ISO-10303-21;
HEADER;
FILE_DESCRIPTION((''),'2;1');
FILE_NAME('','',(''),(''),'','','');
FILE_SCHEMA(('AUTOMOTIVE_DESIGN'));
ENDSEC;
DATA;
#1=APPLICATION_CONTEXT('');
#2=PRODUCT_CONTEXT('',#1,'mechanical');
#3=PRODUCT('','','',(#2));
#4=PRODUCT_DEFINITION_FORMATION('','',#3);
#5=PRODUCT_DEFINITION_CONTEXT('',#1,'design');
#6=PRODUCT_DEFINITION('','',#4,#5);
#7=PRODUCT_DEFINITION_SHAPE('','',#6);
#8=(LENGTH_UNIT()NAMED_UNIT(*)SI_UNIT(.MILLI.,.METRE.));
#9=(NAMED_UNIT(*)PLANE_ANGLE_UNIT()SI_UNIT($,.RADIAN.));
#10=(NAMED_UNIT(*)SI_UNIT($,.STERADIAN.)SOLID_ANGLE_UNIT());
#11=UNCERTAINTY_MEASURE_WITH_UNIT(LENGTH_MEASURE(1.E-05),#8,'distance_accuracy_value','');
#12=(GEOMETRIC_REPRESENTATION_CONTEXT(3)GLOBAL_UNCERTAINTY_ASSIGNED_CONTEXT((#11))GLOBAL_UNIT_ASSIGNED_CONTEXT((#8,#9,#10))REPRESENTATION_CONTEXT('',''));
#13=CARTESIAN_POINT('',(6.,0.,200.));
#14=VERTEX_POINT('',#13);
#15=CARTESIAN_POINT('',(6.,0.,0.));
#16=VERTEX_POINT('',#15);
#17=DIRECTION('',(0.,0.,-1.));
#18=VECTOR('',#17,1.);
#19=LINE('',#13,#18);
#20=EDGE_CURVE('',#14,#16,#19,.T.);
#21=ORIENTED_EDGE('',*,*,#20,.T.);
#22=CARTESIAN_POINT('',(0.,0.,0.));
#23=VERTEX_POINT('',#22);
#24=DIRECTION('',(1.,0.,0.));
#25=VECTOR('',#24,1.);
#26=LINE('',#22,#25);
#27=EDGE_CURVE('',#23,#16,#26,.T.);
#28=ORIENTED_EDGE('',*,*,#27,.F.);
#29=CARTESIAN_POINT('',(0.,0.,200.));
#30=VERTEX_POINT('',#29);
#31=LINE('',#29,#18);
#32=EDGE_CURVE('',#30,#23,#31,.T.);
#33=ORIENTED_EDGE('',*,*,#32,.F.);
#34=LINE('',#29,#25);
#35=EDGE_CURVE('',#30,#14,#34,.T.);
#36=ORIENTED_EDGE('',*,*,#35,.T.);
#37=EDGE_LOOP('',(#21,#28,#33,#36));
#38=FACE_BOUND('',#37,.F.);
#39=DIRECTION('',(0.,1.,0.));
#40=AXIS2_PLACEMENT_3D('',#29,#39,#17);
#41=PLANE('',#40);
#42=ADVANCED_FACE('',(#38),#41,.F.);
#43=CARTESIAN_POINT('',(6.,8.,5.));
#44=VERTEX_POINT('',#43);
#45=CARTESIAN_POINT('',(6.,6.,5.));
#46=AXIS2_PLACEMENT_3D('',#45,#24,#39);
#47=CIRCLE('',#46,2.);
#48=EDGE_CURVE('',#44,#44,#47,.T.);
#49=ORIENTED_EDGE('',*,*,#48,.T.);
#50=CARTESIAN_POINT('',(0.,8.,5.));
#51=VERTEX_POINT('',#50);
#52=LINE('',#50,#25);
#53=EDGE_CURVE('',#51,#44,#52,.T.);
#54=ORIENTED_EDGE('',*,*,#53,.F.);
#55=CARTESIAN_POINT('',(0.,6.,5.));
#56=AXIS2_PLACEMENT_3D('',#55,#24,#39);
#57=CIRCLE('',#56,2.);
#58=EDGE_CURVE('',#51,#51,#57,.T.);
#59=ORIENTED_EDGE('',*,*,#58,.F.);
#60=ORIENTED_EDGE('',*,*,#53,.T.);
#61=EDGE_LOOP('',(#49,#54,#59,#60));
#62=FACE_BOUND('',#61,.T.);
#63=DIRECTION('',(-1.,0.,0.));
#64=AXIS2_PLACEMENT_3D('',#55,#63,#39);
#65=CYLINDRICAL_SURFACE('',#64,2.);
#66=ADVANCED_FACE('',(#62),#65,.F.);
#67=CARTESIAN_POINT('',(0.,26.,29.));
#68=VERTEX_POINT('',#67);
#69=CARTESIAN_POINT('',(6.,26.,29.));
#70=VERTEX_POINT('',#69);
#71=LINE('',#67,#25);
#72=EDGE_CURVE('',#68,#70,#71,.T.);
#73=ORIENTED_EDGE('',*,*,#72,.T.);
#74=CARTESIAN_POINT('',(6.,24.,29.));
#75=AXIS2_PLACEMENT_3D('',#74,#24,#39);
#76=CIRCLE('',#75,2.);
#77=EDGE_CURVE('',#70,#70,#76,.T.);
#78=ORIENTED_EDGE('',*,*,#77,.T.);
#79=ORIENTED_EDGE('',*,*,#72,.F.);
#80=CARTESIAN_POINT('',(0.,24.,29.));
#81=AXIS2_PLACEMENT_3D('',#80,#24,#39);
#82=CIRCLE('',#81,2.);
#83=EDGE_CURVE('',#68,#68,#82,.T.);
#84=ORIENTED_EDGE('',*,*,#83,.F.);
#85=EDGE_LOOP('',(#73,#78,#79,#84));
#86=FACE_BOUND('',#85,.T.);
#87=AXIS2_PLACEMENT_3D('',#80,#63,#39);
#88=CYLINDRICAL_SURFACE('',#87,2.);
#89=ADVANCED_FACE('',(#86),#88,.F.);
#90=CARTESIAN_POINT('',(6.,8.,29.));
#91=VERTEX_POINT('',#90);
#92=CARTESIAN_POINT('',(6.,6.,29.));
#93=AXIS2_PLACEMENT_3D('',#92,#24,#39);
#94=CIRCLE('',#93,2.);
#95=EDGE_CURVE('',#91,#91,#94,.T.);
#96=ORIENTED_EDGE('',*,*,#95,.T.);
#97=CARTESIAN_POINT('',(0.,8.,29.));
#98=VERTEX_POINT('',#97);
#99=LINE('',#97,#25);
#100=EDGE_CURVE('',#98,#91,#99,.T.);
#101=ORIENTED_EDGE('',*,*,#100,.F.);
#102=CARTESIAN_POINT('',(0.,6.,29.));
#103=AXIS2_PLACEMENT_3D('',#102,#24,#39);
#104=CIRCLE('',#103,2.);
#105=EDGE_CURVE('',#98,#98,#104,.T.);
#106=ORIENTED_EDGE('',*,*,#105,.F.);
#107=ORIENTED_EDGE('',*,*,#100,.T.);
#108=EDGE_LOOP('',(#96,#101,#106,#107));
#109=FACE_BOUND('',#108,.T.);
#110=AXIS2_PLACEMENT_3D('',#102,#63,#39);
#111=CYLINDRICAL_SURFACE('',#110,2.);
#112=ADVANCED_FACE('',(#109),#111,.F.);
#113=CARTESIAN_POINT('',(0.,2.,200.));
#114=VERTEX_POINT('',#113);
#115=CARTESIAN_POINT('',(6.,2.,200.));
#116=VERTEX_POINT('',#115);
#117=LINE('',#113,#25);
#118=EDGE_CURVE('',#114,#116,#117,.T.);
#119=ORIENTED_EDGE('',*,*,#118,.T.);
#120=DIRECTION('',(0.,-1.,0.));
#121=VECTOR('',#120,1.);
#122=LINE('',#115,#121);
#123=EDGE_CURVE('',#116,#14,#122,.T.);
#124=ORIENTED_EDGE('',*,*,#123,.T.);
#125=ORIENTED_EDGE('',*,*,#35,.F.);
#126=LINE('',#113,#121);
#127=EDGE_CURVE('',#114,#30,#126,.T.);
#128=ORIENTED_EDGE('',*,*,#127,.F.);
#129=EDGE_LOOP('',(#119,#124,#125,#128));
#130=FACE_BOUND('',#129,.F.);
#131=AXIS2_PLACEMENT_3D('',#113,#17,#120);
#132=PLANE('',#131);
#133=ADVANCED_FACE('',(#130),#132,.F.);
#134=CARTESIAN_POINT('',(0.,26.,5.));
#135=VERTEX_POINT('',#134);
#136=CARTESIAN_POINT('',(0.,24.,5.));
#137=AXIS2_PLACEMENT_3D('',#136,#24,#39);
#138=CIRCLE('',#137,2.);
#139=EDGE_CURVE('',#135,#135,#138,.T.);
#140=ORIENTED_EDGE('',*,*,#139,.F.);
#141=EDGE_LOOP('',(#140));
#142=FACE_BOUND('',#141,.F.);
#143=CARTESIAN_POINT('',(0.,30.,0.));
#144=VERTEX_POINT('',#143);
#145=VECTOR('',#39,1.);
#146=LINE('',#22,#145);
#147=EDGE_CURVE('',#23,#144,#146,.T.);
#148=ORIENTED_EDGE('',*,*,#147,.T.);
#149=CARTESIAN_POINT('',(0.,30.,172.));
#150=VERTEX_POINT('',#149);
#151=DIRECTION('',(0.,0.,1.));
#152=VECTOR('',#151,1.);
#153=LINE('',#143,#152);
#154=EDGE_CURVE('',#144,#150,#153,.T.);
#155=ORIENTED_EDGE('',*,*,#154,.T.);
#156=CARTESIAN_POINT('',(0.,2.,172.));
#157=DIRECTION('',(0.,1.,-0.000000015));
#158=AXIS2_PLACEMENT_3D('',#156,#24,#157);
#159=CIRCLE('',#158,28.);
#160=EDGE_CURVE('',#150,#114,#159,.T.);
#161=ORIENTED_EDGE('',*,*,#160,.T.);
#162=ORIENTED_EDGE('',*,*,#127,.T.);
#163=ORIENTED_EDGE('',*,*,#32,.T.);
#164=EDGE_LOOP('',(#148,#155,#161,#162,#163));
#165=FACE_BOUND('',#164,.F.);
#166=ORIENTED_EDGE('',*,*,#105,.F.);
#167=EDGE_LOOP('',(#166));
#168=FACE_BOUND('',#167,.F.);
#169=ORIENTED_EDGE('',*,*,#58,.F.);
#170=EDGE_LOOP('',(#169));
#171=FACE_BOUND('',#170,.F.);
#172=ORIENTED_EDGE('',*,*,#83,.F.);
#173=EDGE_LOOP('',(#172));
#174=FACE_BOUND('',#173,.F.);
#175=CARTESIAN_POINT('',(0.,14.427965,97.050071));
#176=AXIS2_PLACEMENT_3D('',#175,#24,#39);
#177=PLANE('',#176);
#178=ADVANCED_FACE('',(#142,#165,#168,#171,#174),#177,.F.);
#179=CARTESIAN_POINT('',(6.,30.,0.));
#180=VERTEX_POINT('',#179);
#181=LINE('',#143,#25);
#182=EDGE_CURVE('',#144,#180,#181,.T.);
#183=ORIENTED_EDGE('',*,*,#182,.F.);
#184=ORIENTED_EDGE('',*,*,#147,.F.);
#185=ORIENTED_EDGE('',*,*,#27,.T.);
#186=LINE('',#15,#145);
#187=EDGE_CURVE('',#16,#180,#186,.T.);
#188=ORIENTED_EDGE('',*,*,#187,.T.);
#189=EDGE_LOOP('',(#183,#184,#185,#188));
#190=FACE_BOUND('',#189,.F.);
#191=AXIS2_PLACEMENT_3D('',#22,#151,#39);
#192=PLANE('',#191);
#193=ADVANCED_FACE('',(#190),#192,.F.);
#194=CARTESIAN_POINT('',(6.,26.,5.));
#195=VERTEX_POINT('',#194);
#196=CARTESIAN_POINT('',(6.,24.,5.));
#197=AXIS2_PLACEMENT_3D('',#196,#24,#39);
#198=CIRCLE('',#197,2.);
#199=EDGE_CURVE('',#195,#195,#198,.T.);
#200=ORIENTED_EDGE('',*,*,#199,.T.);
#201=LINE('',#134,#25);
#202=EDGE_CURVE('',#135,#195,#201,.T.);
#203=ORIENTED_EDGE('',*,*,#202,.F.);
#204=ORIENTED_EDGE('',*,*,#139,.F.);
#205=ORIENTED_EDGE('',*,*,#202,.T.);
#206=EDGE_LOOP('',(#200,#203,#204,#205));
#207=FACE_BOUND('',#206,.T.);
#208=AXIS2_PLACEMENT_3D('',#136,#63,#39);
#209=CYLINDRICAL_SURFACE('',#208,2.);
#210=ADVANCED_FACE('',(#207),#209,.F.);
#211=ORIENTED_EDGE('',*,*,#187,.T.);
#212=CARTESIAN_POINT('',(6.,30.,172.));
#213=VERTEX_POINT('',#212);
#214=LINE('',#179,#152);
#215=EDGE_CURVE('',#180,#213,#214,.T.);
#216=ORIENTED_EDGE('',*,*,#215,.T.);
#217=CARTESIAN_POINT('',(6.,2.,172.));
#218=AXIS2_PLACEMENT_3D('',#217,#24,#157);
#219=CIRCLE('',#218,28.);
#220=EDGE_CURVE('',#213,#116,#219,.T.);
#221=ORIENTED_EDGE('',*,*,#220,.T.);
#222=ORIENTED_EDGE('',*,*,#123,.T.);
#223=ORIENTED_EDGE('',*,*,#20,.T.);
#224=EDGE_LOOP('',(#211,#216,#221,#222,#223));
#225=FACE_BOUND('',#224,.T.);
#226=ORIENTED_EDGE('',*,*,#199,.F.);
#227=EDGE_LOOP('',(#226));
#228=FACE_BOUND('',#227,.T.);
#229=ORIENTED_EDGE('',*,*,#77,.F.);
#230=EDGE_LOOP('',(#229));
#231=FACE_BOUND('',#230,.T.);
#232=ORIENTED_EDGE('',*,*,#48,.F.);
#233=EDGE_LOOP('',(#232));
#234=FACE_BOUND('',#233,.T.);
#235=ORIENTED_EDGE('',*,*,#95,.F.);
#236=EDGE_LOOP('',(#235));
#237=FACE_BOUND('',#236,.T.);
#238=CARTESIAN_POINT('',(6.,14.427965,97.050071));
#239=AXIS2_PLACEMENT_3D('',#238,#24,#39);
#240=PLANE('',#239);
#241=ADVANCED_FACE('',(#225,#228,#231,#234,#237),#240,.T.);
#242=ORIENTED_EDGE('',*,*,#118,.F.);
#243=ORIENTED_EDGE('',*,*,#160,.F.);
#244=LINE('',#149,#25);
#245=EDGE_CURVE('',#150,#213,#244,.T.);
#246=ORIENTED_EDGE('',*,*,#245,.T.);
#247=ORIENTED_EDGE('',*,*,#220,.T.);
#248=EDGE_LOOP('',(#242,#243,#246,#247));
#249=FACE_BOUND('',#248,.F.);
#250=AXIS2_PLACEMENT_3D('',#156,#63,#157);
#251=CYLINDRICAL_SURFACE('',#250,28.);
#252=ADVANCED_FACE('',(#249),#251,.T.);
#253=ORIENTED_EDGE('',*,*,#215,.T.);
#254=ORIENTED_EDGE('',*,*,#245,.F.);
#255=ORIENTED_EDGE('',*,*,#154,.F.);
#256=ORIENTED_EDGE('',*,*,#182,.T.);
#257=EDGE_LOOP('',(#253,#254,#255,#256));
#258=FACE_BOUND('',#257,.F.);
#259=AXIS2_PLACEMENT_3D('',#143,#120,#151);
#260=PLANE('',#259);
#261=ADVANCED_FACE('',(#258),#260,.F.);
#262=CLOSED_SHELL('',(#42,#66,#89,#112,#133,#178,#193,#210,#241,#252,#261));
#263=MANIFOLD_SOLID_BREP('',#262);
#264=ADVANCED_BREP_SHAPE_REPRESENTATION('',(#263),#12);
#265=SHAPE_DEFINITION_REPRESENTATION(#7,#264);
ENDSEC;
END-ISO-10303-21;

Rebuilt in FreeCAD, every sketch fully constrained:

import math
import FreeCAD as App
import Part
import Sketcher

V = App.Vector
Q = App.Units.Quantity

doc = App.newDocument("Part")
params = doc.addObject("Spreadsheet::Sheet", "Params")
for row, (alias, value) in enumerate([
    ("sketch1_diameter", "4 mm"),
    ("sketch1_radius", "28 mm"),
    ("sketch1_width", "30 mm"),
    ("sketch1_height", "172 mm"),
    ("pad1_length", "6 mm"),
], start=1):
    params.set(f"A{row}", alias)
    params.set(f"B{row}", "=" + value)
    params.setAlias(f"B{row}", alias)

body = doc.addObject("PartDesign::Body", "Body")

# Sketch on YZ plane
sketch1 = doc.addObject("Sketcher::SketchObject", "Sketch")
body.addObject(sketch1)
sketch1.AttachmentSupport = (doc.YZ_Plane, [""])
sketch1.MapMode = "FlatFace"
sketch1.addGeometry([
    Part.LineSegment(V(0, 0, 0), V(30, 0, 0)),  # 0
    Part.LineSegment(V(30, 0, 0), V(30, 172, 0)),  # 1
    Part.ArcOfCircle(Part.Circle(V(2, 172, 0), V(0, 0, 1), 28), math.radians(0), math.radians(90)),  # 2
    Part.LineSegment(V(2, 200, 0), V(0, 200, 0)),  # 3
    Part.LineSegment(V(0, 200, 0), V(0, 0, 0)),  # 4
    Part.Circle(V(6, 5, 0), V(0, 0, 1), 2),  # 5
    Part.Circle(V(24, 5, 0), V(0, 0, 1), 2),  # 6
    Part.Circle(V(6, 29, 0), V(0, 0, 1), 2),  # 7
    Part.Circle(V(24, 29, 0), V(0, 0, 1), 2),  # 8
], False)
sketch1.addConstraint([
    Sketcher.Constraint("Coincident", 0, 2, 1, 1),
    Sketcher.Constraint("Tangent", 1, 2, 2, 1),
    Sketcher.Constraint("Tangent", 2, 2, 3, 1),
    Sketcher.Constraint("Coincident", 3, 2, 4, 1),
    Sketcher.Constraint("Coincident", 4, 2, 0, 1),
    Sketcher.Constraint("Horizontal", 0),
    Sketcher.Constraint("Vertical", 1),
    Sketcher.Constraint("Horizontal", 3),
    Sketcher.Constraint("Vertical", 4),
    Sketcher.Constraint("Coincident", 4, 2, -1, 1),
    Sketcher.Constraint("Equal", 5, 6),
    Sketcher.Constraint("Equal", 6, 7),
    Sketcher.Constraint("Equal", 7, 8),
    Sketcher.Constraint("Horizontal", 5, 3, 6, 3),
    Sketcher.Constraint("Horizontal", 7, 3, 8, 3),
    Sketcher.Constraint("Vertical", 5, 3, 7, 3),
    Sketcher.Constraint("Vertical", 6, 3, 8, 3),
    Sketcher.Constraint("Diameter", 5, Q("4 mm")),
    Sketcher.Constraint("Radius", 2, Q("28 mm")),
    Sketcher.Constraint("DistanceX", 0, 1, 0, 2, Q("30 mm")),
    Sketcher.Constraint("DistanceY", 1, 1, 1, 2, Q("172 mm")),
    Sketcher.Constraint("DistanceX", -1, 1, 5, 3, Q("6 mm")),
    Sketcher.Constraint("DistanceY", -1, 1, 5, 3, Q("5 mm")),
    Sketcher.Constraint("DistanceX", -1, 1, 6, 3, Q("24 mm")),
    Sketcher.Constraint("DistanceY", -1, 1, 7, 3, Q("29 mm")),
])
sketch1.setExpression("Constraints[17]", "Params.sketch1_diameter")
sketch1.setExpression("Constraints[18]", "Params.sketch1_radius")
sketch1.setExpression("Constraints[19]", "Params.sketch1_width")
sketch1.setExpression("Constraints[20]", "Params.sketch1_height")
pad1 = doc.addObject("PartDesign::Pad", "Pad")
body.addObject(pad1)
pad1.Profile = sketch1
pad1.setExpression("Length", "Params.pad1_length")

doc.recompute()
